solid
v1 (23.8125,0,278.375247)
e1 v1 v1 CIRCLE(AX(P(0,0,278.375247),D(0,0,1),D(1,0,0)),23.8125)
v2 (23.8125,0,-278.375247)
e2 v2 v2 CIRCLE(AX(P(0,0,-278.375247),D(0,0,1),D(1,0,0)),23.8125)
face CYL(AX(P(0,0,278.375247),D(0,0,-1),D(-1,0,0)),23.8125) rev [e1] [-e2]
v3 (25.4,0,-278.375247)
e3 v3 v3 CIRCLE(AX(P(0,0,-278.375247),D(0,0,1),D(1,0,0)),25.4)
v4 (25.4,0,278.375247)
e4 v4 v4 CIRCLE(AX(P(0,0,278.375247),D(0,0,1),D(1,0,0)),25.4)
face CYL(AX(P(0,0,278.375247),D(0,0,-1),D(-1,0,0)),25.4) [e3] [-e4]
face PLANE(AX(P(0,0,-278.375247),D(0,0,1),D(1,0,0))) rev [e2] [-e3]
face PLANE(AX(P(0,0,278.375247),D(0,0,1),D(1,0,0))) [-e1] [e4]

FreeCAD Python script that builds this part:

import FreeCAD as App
import Part
import Sketcher
Q = App.Units.Quantity

doc = App.newDocument("Part")
body = doc.addObject("PartDesign::Body", "Body")

# Sketch on XY plane
sketch1 = doc.addObject("Sketcher::SketchObject", "Sketch")
body.addObject(sketch1)
sketch1.AttachmentSupport = (doc.XY_Plane, [""])
sketch1.MapMode = "FlatFace"
sketch1.addGeometry(Part.Circle(App.Vector(0, 0, 0), App.Vector(0, 0, 1), 25), False)
sketch1.addGeometry(Part.Circle(App.Vector(0, 0, 0), App.Vector(0, 0, 1), 24), False)
sketch1.addConstraint(Sketcher.Constraint("Coincident", 0, 3, -1, 1))
sketch1.addConstraint(Sketcher.Constraint("Coincident", 1, 3, -1, 1))
sketch1.addConstraint(Sketcher.Constraint("Diameter", 0, Q("2 in")))
sketch1.addConstraint(Sketcher.Constraint("Diameter", 1, Q("1.875 in")))
pad1 = doc.addObject("PartDesign::Pad", "Pad")
body.addObject(pad1)
pad1.Profile = sketch1
pad1.Length = 556.750495
pad1.Midplane = True

doc.recompute()
